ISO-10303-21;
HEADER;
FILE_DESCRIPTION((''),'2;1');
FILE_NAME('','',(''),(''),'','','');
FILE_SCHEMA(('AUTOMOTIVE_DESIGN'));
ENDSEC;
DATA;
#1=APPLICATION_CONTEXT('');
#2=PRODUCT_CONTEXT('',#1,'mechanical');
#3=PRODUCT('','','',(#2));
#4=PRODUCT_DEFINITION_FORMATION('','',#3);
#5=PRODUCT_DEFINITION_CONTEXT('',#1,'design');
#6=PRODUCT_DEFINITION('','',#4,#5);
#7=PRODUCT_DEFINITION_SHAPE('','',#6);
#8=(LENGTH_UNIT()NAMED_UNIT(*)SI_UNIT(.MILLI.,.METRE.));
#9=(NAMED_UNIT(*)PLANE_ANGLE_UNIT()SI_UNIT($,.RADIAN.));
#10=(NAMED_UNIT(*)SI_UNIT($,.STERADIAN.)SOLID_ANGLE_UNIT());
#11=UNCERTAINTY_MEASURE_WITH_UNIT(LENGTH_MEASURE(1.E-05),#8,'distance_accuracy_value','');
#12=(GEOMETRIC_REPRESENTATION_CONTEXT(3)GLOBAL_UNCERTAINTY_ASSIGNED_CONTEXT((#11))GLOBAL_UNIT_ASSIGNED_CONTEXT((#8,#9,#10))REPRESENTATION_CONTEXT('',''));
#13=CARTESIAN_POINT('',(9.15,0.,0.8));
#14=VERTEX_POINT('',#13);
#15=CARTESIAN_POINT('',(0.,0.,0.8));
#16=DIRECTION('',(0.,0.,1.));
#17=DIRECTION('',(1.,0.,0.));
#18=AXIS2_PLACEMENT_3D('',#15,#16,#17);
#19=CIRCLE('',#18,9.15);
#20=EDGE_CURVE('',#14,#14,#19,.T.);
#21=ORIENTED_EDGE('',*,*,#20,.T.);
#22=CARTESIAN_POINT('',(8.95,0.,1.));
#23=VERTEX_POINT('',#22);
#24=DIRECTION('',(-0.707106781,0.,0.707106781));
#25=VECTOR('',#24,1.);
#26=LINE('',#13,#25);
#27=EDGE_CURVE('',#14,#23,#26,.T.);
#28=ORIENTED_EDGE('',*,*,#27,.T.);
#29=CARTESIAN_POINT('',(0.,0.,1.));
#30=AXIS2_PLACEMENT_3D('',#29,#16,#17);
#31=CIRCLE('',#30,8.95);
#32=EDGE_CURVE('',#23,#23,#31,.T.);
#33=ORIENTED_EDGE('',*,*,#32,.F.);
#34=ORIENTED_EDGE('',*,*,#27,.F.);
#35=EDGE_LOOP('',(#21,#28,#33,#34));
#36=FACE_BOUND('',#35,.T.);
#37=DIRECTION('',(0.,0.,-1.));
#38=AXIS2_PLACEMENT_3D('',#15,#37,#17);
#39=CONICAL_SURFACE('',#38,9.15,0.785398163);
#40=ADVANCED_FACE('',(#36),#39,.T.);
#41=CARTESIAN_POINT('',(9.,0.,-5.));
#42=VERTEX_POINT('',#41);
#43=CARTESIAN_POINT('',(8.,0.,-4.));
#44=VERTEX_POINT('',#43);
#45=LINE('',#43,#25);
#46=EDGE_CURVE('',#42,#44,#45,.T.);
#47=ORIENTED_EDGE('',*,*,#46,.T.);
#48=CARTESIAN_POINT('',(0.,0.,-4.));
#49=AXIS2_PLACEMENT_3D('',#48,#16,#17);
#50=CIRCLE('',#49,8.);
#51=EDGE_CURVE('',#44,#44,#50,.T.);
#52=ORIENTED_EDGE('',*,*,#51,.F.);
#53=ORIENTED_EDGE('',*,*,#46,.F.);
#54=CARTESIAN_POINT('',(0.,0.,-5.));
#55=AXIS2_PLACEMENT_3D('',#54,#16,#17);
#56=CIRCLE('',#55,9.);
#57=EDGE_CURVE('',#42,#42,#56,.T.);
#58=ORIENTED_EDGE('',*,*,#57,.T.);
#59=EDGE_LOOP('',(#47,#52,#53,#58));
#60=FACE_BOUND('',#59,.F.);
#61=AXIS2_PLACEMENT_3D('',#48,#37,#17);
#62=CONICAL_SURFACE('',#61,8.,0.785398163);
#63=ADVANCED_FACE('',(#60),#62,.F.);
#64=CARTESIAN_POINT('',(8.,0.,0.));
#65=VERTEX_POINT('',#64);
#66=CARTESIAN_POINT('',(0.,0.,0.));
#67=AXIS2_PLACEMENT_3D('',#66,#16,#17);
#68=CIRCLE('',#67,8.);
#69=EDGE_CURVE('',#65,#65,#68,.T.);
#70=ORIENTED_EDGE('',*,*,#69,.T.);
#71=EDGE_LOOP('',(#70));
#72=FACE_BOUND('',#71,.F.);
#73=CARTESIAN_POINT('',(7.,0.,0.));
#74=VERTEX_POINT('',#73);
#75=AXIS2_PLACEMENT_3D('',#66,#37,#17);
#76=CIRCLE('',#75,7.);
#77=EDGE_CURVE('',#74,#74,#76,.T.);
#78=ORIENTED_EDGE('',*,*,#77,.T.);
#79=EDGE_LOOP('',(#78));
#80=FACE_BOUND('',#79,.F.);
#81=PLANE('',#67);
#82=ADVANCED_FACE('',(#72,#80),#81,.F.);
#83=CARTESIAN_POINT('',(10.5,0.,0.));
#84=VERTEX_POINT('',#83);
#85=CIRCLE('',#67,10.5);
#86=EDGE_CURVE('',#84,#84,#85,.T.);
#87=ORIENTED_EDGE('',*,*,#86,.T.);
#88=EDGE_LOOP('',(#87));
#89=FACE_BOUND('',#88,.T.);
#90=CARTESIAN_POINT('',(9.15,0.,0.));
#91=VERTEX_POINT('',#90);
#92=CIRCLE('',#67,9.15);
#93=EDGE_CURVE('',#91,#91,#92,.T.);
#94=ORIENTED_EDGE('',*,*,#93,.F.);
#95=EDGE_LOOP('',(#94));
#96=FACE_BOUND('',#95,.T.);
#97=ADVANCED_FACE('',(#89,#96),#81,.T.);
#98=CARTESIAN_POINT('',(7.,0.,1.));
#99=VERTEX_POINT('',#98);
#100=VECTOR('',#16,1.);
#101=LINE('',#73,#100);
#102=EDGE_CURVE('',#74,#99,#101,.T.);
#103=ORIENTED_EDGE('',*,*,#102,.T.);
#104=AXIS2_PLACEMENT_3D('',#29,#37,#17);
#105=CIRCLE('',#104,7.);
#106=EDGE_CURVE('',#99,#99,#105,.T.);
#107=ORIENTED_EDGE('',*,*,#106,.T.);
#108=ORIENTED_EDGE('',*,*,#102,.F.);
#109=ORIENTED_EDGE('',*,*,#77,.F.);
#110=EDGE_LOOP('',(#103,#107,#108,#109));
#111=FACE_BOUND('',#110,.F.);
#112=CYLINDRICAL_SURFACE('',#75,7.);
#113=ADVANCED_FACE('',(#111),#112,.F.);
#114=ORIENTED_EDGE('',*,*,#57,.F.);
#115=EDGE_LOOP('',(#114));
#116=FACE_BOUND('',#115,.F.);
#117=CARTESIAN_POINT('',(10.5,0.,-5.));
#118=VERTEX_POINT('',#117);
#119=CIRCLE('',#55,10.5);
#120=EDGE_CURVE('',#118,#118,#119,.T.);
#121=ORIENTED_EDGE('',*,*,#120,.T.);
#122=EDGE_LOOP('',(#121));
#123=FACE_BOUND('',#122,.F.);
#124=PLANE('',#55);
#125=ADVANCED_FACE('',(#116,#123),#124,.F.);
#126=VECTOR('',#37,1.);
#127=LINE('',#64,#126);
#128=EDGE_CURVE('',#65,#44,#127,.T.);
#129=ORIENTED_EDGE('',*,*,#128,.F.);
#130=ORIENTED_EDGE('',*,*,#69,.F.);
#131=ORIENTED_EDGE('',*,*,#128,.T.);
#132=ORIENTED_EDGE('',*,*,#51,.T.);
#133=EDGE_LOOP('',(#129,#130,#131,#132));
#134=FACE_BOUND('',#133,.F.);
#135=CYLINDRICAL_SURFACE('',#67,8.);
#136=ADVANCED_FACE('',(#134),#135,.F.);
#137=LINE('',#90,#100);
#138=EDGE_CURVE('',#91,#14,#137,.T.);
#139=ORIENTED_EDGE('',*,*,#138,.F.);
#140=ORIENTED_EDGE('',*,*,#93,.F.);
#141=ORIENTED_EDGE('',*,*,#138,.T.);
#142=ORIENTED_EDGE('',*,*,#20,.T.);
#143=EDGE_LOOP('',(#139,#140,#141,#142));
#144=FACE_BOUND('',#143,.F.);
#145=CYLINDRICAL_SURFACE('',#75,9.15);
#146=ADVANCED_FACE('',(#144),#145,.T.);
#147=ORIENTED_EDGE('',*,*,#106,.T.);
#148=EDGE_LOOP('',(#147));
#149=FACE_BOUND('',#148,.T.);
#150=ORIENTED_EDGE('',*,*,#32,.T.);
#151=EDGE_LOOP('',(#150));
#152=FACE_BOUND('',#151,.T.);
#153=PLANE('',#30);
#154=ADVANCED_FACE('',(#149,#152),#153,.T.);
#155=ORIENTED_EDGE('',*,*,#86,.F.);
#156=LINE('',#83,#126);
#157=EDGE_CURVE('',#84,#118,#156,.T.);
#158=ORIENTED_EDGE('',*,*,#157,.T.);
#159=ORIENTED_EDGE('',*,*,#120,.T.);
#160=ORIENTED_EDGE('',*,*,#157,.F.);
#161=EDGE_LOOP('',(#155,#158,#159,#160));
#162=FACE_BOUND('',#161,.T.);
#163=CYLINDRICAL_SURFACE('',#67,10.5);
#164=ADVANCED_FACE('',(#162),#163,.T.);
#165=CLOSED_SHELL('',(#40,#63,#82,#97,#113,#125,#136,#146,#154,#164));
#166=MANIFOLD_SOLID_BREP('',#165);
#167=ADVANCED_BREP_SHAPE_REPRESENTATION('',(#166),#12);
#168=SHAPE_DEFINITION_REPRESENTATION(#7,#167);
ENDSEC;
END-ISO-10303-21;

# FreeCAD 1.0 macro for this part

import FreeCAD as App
import Part
import Sketcher

V = App.Vector


def edges_at(feature, points):
    """Names of the edges that pass closest to the given points."""
    edges = feature.Shape.Edges
    near = lambda p: min(range(len(edges)), key=lambda i: edges[i].distToShape(Part.Vertex(*p))[0])
    return sorted({f"Edge{near(p) + 1}" for p in points})

doc = App.newDocument("Part")
params = doc.addObject("Spreadsheet::Sheet", "Params")
for row, (alias, value) in enumerate([
    ("sketch1_diameter", "18.3 mm"),
    ("pad1_length", "1 mm"),
    ("sketch2_diameter", "21 mm"),
    ("sketch2_diameter2", "16 mm"),
    ("pad2_length", "5 mm"),
    ("sketch3_diameter", "14 mm"),
    ("chamfer_size", "1 mm"),
    ("chamfer2_size", "0.2 mm"),
], start=1):
    params.set(f"A{row}", alias)
    params.set(f"B{row}", "=" + value)
    params.setAlias(f"B{row}", alias)

body = doc.addObject("PartDesign::Body", "Body")

# Sketch on XY plane
sketch1 = body.newObject("Sketcher::SketchObject", "Sketch")
sketch1.AttachmentSupport = (doc.getObject("XY_Plane"), [""])
sketch1.MapMode = "FlatFace"
sketch1.addGeometry(Part.Circle(V(0, 0, 0), V(0, 0, 1), 9), False)
sketch1.addConstraint(Sketcher.Constraint("Coincident", 0, 3, -1, 1))
sketch1.addConstraint(Sketcher.Constraint("Diameter", 0, 18.3))
sketch1.setExpression("Constraints[1]", "Params.sketch1_diameter")
pad1 = body.newObject("PartDesign::Pad", "Pad")
pad1.Profile = sketch1
pad1.setExpression("Length", "Params.pad1_length")

# Sketch on XY plane
sketch2 = body.newObject("Sketcher::SketchObject", "Sketch001")
sketch2.AttachmentSupport = (doc.getObject("XY_Plane"), [""])
sketch2.MapMode = "FlatFace"
sketch2.addGeometry(Part.Circle(V(0, 0, 0), V(0, 0, 1), 10), False)
sketch2.addGeometry(Part.Circle(V(0, 0, 0), V(0, 0, 1), 8), False)
sketch2.addConstraint(Sketcher.Constraint("Coincident", 0, 3, -1, 1))
sketch2.addConstraint(Sketcher.Constraint("Coincident", 1, 3, -1, 1))
sketch2.addConstraint(Sketcher.Constraint("Diameter", 0, 21.0))
sketch2.addConstraint(Sketcher.Constraint("Diameter", 1, 16.0))
sketch2.setExpression("Constraints[2]", "Params.sketch2_diameter")
sketch2.setExpression("Constraints[3]", "Params.sketch2_diameter2")
pad2 = body.newObject("PartDesign::Pad", "Pad001")
pad2.Profile = sketch2
pad2.setExpression("Length", "Params.pad2_length")
pad2.Reversed = True

# Sketch on XY plane
sketch3 = body.newObject("Sketcher::SketchObject", "Sketch002")
sketch3.AttachmentSupport = (doc.getObject("XY_Plane"), [""])
sketch3.MapMode = "FlatFace"
sketch3.addGeometry(Part.Circle(V(0, 0, 0), V(0, 0, 1), 7), False)
sketch3.addConstraint(Sketcher.Constraint("Coincident", 0, 3, -1, 1))
sketch3.addConstraint(Sketcher.Constraint("Diameter", 0, 14.0))
sketch3.setExpression("Constraints[1]", "Params.sketch3_diameter")
pocket1 = body.newObject("PartDesign::Pocket", "Pocket")
pocket1.Profile = sketch3
pocket1.Type = "ThroughAll"
pocket1.Reversed = True
doc.recompute()

chamfer = body.newObject("PartDesign::Chamfer", "Chamfer")
chamfer.Base = (pocket1, edges_at(pocket1, [(-8, 0, -5)]))
chamfer.setExpression("Size", "Params.chamfer_size")
doc.recompute()

chamfer2 = body.newObject("PartDesign::Chamfer", "Chamfer001")
chamfer2.Base = (chamfer, edges_at(chamfer, [(-9.15, 0, 1)]))
chamfer2.setExpression("Size", "Params.chamfer2_size")

doc.recompute()
